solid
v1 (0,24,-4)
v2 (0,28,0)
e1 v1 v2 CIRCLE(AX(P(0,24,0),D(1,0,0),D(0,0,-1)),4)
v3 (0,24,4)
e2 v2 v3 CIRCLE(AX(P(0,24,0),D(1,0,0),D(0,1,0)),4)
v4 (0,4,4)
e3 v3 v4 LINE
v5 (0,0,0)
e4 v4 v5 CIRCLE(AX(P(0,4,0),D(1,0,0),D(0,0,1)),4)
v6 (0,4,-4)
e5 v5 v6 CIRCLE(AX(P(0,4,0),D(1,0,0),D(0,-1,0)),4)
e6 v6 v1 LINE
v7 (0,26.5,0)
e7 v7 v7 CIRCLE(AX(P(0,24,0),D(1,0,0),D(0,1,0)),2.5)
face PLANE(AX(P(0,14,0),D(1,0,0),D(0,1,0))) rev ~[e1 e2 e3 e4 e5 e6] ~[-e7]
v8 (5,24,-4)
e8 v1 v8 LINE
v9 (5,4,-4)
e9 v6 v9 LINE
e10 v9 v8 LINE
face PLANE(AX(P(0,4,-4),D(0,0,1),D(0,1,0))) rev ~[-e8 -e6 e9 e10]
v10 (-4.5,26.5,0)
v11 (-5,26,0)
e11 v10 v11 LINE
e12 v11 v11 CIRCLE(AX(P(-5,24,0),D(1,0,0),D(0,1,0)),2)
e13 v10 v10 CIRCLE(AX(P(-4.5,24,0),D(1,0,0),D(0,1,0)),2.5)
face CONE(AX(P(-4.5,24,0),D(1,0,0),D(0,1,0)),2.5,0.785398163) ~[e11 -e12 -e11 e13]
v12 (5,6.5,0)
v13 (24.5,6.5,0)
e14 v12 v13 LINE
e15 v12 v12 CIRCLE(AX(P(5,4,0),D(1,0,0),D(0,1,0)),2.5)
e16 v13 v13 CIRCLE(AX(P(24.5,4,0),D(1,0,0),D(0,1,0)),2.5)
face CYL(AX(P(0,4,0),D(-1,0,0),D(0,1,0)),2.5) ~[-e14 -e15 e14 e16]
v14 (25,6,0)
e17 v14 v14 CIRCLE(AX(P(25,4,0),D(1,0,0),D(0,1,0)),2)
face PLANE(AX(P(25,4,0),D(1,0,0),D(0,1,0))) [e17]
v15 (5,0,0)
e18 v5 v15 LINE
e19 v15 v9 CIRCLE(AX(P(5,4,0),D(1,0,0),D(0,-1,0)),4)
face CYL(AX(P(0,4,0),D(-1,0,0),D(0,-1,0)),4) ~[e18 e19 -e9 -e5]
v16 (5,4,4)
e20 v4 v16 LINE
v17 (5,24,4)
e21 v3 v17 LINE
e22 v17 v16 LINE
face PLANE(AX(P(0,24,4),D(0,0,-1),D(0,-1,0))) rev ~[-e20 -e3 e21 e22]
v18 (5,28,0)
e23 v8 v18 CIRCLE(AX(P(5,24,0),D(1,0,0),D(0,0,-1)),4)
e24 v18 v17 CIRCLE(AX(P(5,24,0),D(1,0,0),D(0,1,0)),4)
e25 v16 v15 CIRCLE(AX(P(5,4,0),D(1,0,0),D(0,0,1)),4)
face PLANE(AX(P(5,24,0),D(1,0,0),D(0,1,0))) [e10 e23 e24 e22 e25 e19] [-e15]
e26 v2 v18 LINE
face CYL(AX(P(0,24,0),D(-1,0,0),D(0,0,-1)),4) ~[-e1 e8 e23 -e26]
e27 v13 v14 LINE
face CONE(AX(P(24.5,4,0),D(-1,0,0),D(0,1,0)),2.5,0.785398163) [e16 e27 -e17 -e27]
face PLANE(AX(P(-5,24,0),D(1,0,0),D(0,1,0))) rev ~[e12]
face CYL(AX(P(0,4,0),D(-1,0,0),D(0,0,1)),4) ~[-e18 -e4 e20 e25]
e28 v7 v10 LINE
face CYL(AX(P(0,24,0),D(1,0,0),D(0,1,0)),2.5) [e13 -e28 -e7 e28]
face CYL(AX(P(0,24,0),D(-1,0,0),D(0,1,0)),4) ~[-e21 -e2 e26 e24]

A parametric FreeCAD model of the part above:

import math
import FreeCAD as App
import Part
import Sketcher
from FreeCAD import Vector
Q = App.Units.Quantity


def edges_at(feature, points):
    """Names of the edges that pass closest to the given points."""
    edges = feature.Shape.Edges
    near = lambda p: min(range(len(edges)), key=lambda i: edges[i].distToShape(Part.Vertex(*p))[0])
    return sorted({f"Edge{near(p) + 1}" for p in points})

doc = App.newDocument("Part")
body = doc.addObject("PartDesign::Body", "Body")

# Sketch on YZ plane
sketch1 = body.newObject("Sketcher::SketchObject", "Sketch")
sketch1.AttachmentSupport = (doc.getObject("YZ_Plane"), [""])
sketch1.MapMode = "FlatFace"
sketch1.addGeometry(Part.Circle(Vector(4, 0, 0), Vector(0, 0, 1), 2.5), False)
sketch1.addConstraint([
    Sketcher.Constraint("PointOnObject", 0, 3, -1),
    Sketcher.Constraint("Diameter", 0, Q("5 mm")),
    Sketcher.Constraint("DistanceX", -1, 1, 0, 3, Q("4 mm")),
])
pad1 = body.newObject("PartDesign::Pad", "Pad")
pad1.Profile = sketch1
pad1.Length = 25

# Sketch on YZ plane
sketch2 = body.newObject("Sketcher::SketchObject", "Sketch001")
sketch2.AttachmentSupport = (doc.getObject("YZ_Plane"), [""])
sketch2.MapMode = "FlatFace"
sketch2.addGeometry([
    Part.ArcOfCircle(Part.Circle(Vector(4, 0, 0), Vector(0, 0, 1), 4), math.radians(180), math.radians(270)),  # 0
    Part.LineSegment(Vector(4, -4, 0), Vector(24, -4, 0)),  # 1
    Part.ArcOfCircle(Part.Circle(Vector(24, 0, 0), Vector(0, 0, 1), 4), math.radians(-90), math.radians(0)),  # 2
    Part.ArcOfCircle(Part.Circle(Vector(24, 0, 0), Vector(0, 0, 1), 4), math.radians(0), math.radians(90)),  # 3
    Part.LineSegment(Vector(24, 4, 0), Vector(4, 4, 0)),  # 4
    Part.ArcOfCircle(Part.Circle(Vector(4, 0, 0), Vector(0, 0, 1), 4), math.radians(90), math.radians(180)),  # 5
    Part.Circle(Vector(4, 0, 0), Vector(0, 0, 1), 2.5),  # 6
    Part.Circle(Vector(24, 0, 0), Vector(0, 0, 1), 2.5),  # 7
], False)
sketch2.addConstraint([
    Sketcher.Constraint("Tangent", 0, 2, 1, 1),
    Sketcher.Constraint("Tangent", 1, 2, 2, 1),
    Sketcher.Constraint("Tangent", 2, 2, 3, 1),
    Sketcher.Constraint("Tangent", 3, 2, 4, 1),
    Sketcher.Constraint("Tangent", 4, 2, 5, 1),
    Sketcher.Constraint("Tangent", 5, 2, 0, 1),
    Sketcher.Constraint("Horizontal", 1),
    Sketcher.Constraint("Horizontal", 4),
    Sketcher.Constraint("Coincident", 5, 2, -1, 1),
    Sketcher.Constraint("Coincident", 6, 3, 0, 3),
    Sketcher.Constraint("Coincident", 7, 3, 2, 3),
    Sketcher.Constraint("Equal", 0, 2),
    Sketcher.Constraint("Equal", 2, 3),
    Sketcher.Constraint("Equal", 6, 7),
    Sketcher.Constraint("PointOnObject", 0, 3, -1),
    Sketcher.Constraint("PointOnObject", 2, 2, -1),
    Sketcher.Constraint("Diameter", 6, Q("5 mm")),
    Sketcher.Constraint("Radius", 0, Q("4 mm")),
    Sketcher.Constraint("DistanceX", 1, 1, 1, 2, Q("20 mm")),
])
pad2 = body.newObject("PartDesign::Pad", "Pad001")
pad2.Profile = sketch2
pad2.Length = 5

# Sketch on YZ plane
sketch3 = body.newObject("Sketcher::SketchObject", "Sketch002")
sketch3.AttachmentSupport = (doc.getObject("YZ_Plane"), [""])
sketch3.MapMode = "FlatFace"
sketch3.addGeometry(Part.Circle(Vector(24, 0, 0), Vector(0, 0, 1), 2.5), False)
sketch3.addConstraint([
    Sketcher.Constraint("PointOnObject", 0, 3, -1),
    Sketcher.Constraint("Diameter", 0, Q("5 mm")),
    Sketcher.Constraint("DistanceX", -1, 1, 0, 3, Q("24 mm")),
])
pad3 = body.newObject("PartDesign::Pad", "Pad002")
pad3.Profile = sketch3
pad3.Type = "TwoLengths"
pad3.Length = 5
pad3.Length2 = 5
pad3.Reversed = True
doc.recompute()

chamfer = body.newObject("PartDesign::Chamfer", "Chamfer")
chamfer.Base = (pad3, edges_at(pad3, [(-5, 21.5, 0), (25, 1.5, 0)]))
chamfer.Size = 0.5

doc.recompute()
